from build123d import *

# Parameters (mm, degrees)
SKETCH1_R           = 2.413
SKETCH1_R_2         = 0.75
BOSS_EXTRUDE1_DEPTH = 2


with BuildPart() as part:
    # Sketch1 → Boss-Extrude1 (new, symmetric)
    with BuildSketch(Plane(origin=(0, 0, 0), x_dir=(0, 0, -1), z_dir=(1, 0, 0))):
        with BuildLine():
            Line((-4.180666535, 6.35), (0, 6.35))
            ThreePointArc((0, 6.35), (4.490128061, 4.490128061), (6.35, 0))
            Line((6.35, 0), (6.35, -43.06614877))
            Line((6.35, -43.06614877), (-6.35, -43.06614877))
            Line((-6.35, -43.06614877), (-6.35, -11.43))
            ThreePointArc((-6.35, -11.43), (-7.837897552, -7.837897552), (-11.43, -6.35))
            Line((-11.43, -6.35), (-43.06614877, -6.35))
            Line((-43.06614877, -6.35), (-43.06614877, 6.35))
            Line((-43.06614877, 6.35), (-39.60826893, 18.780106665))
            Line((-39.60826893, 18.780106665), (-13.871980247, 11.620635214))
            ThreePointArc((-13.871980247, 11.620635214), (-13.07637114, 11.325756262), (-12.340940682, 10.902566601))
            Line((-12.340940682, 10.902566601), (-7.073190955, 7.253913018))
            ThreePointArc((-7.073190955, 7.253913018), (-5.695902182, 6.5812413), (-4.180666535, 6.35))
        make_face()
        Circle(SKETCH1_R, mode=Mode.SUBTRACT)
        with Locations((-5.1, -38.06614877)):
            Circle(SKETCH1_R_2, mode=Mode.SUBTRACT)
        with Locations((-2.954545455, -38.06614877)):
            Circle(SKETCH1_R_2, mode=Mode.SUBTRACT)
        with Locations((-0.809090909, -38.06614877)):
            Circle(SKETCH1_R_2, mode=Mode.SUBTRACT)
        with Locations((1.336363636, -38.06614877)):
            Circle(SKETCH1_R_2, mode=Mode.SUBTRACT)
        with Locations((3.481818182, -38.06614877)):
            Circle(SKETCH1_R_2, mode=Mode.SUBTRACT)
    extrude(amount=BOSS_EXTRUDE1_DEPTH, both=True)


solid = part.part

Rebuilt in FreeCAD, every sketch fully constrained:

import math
import FreeCAD as App
import Part
import Sketcher
Q = App.Units.Quantity

doc = App.newDocument("Part")
body = doc.addObject("PartDesign::Body", "Body")

# Sketch on YZ plane
sketch1 = doc.addObject("Sketcher::SketchObject", "Sketch")
body.addObject(sketch1)
sketch1.AttachmentSupport = (doc.YZ_Plane, [""])
sketch1.MapMode = "FlatFace"
sketch1.addGeometry([
    Part.LineSegment(App.Vector(6.35, 0, 0), App.Vector(6.35, 4.180667, 0)),  # 0
    Part.ArcOfCircle(Part.Circle(App.Vector(11.43, 4.180667, 0), App.Vector(0, 0, 1), 5.08), math.radians(145.291982), math.radians(180)),  # 1
    Part.LineSegment(App.Vector(7.253913, 7.073191, 0), App.Vector(10.902567, 12.340941, 0)),  # 2
    Part.ArcOfCircle(Part.Circle(App.Vector(6.72648, 15.233465, 0), App.Vector(0, 0, 1), 5.08), math.radians(-34.708018), math.radians(-15.545815)),  # 3
    Part.LineSegment(App.Vector(11.620635, 13.87198, 0), App.Vector(18.780107, 39.608269, 0)),  # 4
    Part.LineSegment(App.Vector(18.780107, 39.608269, 0), App.Vector(6.35, 43.066149, 0)),  # 5
    Part.LineSegment(App.Vector(6.35, 43.066149, 0), App.Vector(-6.35, 43.066149, 0)),  # 6
    Part.LineSegment(App.Vector(-6.35, 43.066149, 0), App.Vector(-6.35, 11.43, 0)),  # 7
    Part.ArcOfCircle(Part.Circle(App.Vector(-11.43, 11.43, 0), App.Vector(0, 0, 1), 5.08), math.radians(-90), math.radians(0)),  # 8
    Part.LineSegment(App.Vector(-11.43, 6.35, 0), App.Vector(-43.066149, 6.35, 0)),  # 9
    Part.LineSegment(App.Vector(-43.066149, 6.35, 0), App.Vector(-43.066149, -6.35, 0)),  # 10
    Part.LineSegment(App.Vector(-43.066149, -6.35, 0), App.Vector(0, -6.35, 0)),  # 11
    Part.ArcOfCircle(Part.Circle(App.Vector(0, 0, 0), App.Vector(0, 0, 1), 6.35), math.radians(-90), math.radians(0)),  # 12
    Part.Circle(App.Vector(-38.066149, -3.481818, 0), App.Vector(0, 0, 1), 0.75),  # 13
    Part.Circle(App.Vector(-38.066149, -1.336364, 0), App.Vector(0, 0, 1), 0.75),  # 14
    Part.Circle(App.Vector(-38.066149, 0.809091, 0), App.Vector(0, 0, 1), 0.75),  # 15
    Part.Circle(App.Vector(-38.066149, 2.954545, 0), App.Vector(0, 0, 1), 0.75),  # 16
    Part.Circle(App.Vector(-38.066149, 5.1, 0), App.Vector(0, 0, 1), 0.75),  # 17
    Part.Circle(App.Vector(0, 0, 0), App.Vector(0, 0, 1), 2.413),  # 18
], False)
sketch1.addConstraint([
    Sketcher.Constraint("Tangent", 0, 2, 1, 2),
    Sketcher.Constraint("Tangent", 1, 1, 2, 1),
    Sketcher.Constraint("Tangent", 2, 2, 3, 1),
    Sketcher.Constraint("Tangent", 3, 2, 4, 1),
    Sketcher.Constraint("Coincident", 4, 2, 5, 1),
    Sketcher.Constraint("Coincident", 5, 2, 6, 1),
    Sketcher.Constraint("Coincident", 6, 2, 7, 1),
    Sketcher.Constraint("Tangent", 7, 2, 8, 2),
    Sketcher.Constraint("Tangent", 8, 1, 9, 1),
    Sketcher.Constraint("Coincident", 9, 2, 10, 1),
    Sketcher.Constraint("Coincident", 10, 2, 11, 1),
    Sketcher.Constraint("Tangent", 11, 2, 12, 1),
    Sketcher.Constraint("Tangent", 12, 2, 0, 1),
    Sketcher.Constraint("Vertical", 0),
    Sketcher.Constraint("Horizontal", 6),
    Sketcher.Constraint("Vertical", 7),
    Sketcher.Constraint("Horizontal", 9),
    Sketcher.Constraint("Vertical", 10),
    Sketcher.Constraint("Horizontal", 11),
    Sketcher.Constraint("Coincident", 12, 3, -1, 1),
    Sketcher.Constraint("Coincident", 18, 3, -1, 1),
    Sketcher.Constraint("Equal", 1, 3),
    Sketcher.Constraint("Equal", 3, 8),
    Sketcher.Constraint("Equal", 13, 14),
    Sketcher.Constraint("Equal", 14, 15),
    Sketcher.Constraint("Equal", 15, 16),
    Sketcher.Constraint("Equal", 16, 17),
    Sketcher.Constraint("Perpendicular", 4, 5),
    Sketcher.Constraint("Vertical", 13, 3, 14, 3),
    Sketcher.Constraint("Vertical", 14, 3, 15, 3),
    Sketcher.Constraint("Vertical", 15, 3, 16, 3),
    Sketcher.Constraint("Vertical", 16, 3, 17, 3),
    Sketcher.Constraint("Vertical", 0, 2, 5, 2),
    Sketcher.Constraint("Equal", 9, 7),
    Sketcher.Constraint("Equal", 6, 10),
    Sketcher.Constraint("Radius", 1, Q("0.2 in")),
    Sketcher.Constraint("Diameter", 18, Q("0.19 in")),
    Sketcher.Constraint("Radius", 12, Q("0.25 in")),
    Sketcher.Constraint("DistanceX", 6, 2, 6, 1, Q("0.5 in")),
    Sketcher.Constraint("Diameter", 13, 1.5),
    Sketcher.Constraint("DistanceY", 13, 3, 16, 3, Q("0.2534001 in")),
    Sketcher.Constraint("DistanceY", 14, 3, 17, 3, Q("0.2534001 in")),
    Sketcher.Constraint("DistanceX", 9, 2, 9, 1, 31.636149),
    Sketcher.Constraint("DistanceY", -1, 1, 17, 3, 5.1),
    Sketcher.Constraint("DistanceY", 1, 3, 3, 3, 11.052799),
    Sketcher.Constraint("DistanceX", 9, 2, 17, 3, 5.0),
    Sketcher.Constraint("Distance", 5, 12.902112),
    Sketcher.Constraint("DistanceY", 0, 1, 0, 2, 4.180667),
    Sketcher.Constraint("DistanceX", -1, 1, 3, 3, 6.72648),
    Sketcher.Constraint("DistanceY", 13, 3, -1, 1, 3.481818),
    Sketcher.Constraint("DistanceY", -1, 1, 15, 3, 0.809091),
])
pad1 = doc.addObject("PartDesign::Pad", "Pad")
body.addObject(pad1)
pad1.Profile = sketch1
pad1.Length = 4
pad1.Midplane = True

doc.recompute()
